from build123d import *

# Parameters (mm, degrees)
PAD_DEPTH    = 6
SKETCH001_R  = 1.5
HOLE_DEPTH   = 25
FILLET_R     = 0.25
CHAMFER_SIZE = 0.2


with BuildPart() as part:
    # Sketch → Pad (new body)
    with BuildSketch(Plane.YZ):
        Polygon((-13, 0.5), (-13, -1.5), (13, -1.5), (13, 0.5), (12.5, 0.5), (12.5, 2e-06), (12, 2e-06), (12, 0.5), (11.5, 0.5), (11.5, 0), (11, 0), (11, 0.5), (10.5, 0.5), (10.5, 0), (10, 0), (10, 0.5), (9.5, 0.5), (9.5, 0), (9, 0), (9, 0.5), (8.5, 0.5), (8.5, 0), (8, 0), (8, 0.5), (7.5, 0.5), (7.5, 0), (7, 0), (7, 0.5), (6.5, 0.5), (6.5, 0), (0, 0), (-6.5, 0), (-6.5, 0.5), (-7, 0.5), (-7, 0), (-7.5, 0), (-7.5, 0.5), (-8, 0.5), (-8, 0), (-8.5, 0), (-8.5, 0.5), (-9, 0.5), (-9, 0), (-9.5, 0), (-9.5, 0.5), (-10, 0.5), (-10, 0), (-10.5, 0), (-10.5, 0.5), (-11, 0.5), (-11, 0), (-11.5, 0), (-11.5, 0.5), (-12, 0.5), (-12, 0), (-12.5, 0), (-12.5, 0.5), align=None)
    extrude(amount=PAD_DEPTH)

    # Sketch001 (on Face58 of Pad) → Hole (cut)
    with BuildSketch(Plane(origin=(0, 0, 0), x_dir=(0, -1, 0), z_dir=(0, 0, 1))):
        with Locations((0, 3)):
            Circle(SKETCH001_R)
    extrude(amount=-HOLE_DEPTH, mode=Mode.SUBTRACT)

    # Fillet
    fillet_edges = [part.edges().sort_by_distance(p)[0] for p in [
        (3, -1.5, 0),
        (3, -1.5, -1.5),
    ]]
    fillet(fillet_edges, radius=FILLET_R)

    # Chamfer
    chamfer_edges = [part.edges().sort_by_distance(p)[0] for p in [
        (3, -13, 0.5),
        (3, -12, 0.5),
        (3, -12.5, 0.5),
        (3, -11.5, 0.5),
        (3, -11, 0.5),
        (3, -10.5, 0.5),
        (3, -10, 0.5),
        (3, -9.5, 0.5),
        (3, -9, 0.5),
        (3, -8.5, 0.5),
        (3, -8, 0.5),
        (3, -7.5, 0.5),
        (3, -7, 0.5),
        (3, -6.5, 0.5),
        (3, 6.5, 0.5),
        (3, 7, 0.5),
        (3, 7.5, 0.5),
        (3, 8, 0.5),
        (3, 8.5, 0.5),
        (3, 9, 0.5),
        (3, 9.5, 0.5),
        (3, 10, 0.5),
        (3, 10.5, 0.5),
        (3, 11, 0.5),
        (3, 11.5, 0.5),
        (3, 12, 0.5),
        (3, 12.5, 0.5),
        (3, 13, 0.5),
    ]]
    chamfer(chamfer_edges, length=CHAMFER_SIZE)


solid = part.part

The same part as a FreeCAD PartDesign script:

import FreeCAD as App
import Part
import Sketcher

V = App.Vector
Q = App.Units.Quantity


def edges_at(feature, points):
    """Names of the edges that pass closest to the given points."""
    edges = feature.Shape.Edges
    near = lambda p: min(range(len(edges)), key=lambda i: edges[i].distToShape(Part.Vertex(*p))[0])
    return sorted({f"Edge{near(p) + 1}" for p in points})

doc = App.newDocument("Part")
body = doc.addObject("PartDesign::Body", "Body")

# Sketch on YZ plane
sketch1 = body.newObject("Sketcher::SketchObject", "Sketch")
sketch1.AttachmentSupport = (doc.getObject("YZ_Plane"), [""])
sketch1.MapMode = "FlatFace"
sketch1.addGeometry([
    Part.LineSegment(V(-13, 0.5, 0), V(-13, -1.5, 0)),  # 0
    Part.LineSegment(V(-13, -1.5, 0), V(13, -1.5, 0)),  # 1
    Part.LineSegment(V(13, -1.5, 0), V(13, 0.5, 0)),  # 2
    Part.LineSegment(V(13, 0.5, 0), V(12.5, 0.5, 0)),  # 3
    Part.LineSegment(V(12.5, 0.5, 0), V(12.5, 0, 0)),  # 4
    Part.LineSegment(V(12.5, 0, 0), V(12, 0, 0)),  # 5
    Part.LineSegment(V(12, 0, 0), V(12, 0.5, 0)),  # 6
    Part.LineSegment(V(12, 0.5, 0), V(11.5, 0.5, 0)),  # 7
    Part.LineSegment(V(11.5, 0.5, 0), V(11.5, 0, 0)),  # 8
    Part.LineSegment(V(11.5, 0, 0), V(11, 0, 0)),  # 9
    Part.LineSegment(V(11, 0, 0), V(11, 0.5, 0)),  # 10
    Part.LineSegment(V(11, 0.5, 0), V(10.5, 0.5, 0)),  # 11
    Part.LineSegment(V(10.5, 0.5, 0), V(10.5, 0, 0)),  # 12
    Part.LineSegment(V(10.5, 0, 0), V(10, 0, 0)),  # 13
    Part.LineSegment(V(10, 0, 0), V(10, 0.5, 0)),  # 14
    Part.LineSegment(V(10, 0.5, 0), V(9.5, 0.5, 0)),  # 15
    Part.LineSegment(V(9.5, 0.5, 0), V(9.5, 0, 0)),  # 16
    Part.LineSegment(V(9.5, 0, 0), V(9, 0, 0)),  # 17
    Part.LineSegment(V(9, 0, 0), V(9, 0.5, 0)),  # 18
    Part.LineSegment(V(9, 0.5, 0), V(8.5, 0.5, 0)),  # 19
    Part.LineSegment(V(8.5, 0.5, 0), V(8.5, 0, 0)),  # 20
    Part.LineSegment(V(8.5, 0, 0), V(8, 0, 0)),  # 21
    Part.LineSegment(V(8, 0, 0), V(8, 0.5, 0)),  # 22
    Part.LineSegment(V(8, 0.5, 0), V(7.5, 0.5, 0)),  # 23
    Part.LineSegment(V(7.5, 0.5, 0), V(7.5, 0, 0)),  # 24
    Part.LineSegment(V(7.5, 0, 0), V(7, 0, 0)),  # 25
    Part.LineSegment(V(7, 0, 0), V(7, 0.5, 0)),  # 26
    Part.LineSegment(V(7, 0.5, 0), V(6.5, 0.5, 0)),  # 27
    Part.LineSegment(V(6.5, 0.5, 0), V(6.5, 0, 0)),  # 28
    Part.LineSegment(V(6.5, 0, 0), V(-6.5, 0, 0)),  # 29
    Part.LineSegment(V(-6.5, 0, 0), V(-6.5, 0.5, 0)),  # 30
    Part.LineSegment(V(-6.5, 0.5, 0), V(-7, 0.5, 0)),  # 31
    Part.LineSegment(V(-7, 0.5, 0), V(-7, 0, 0)),  # 32
    Part.LineSegment(V(-7, 0, 0), V(-7.5, 0, 0)),  # 33
    Part.LineSegment(V(-7.5, 0, 0), V(-7.5, 0.5, 0)),  # 34
    Part.LineSegment(V(-7.5, 0.5, 0), V(-8, 0.5, 0)),  # 35
    Part.LineSegment(V(-8, 0.5, 0), V(-8, 0, 0)),  # 36
    Part.LineSegment(V(-8, 0, 0), V(-8.5, 0, 0)),  # 37
    Part.LineSegment(V(-8.5, 0, 0), V(-8.5, 0.5, 0)),  # 38
    Part.LineSegment(V(-8.5, 0.5, 0), V(-9, 0.5, 0)),  # 39
    Part.LineSegment(V(-9, 0.5, 0), V(-9, 0, 0)),  # 40
    Part.LineSegment(V(-9, 0, 0), V(-9.5, 0, 0)),  # 41
    Part.LineSegment(V(-9.5, 0, 0), V(-9.5, 0.5, 0)),  # 42
    Part.LineSegment(V(-9.5, 0.5, 0), V(-10, 0.5, 0)),  # 43
    Part.LineSegment(V(-10, 0.5, 0), V(-10, 0, 0)),  # 44
    Part.LineSegment(V(-10, 0, 0), V(-10.5, 0, 0)),  # 45
    Part.LineSegment(V(-10.5, 0, 0), V(-10.5, 0.5, 0)),  # 46
    Part.LineSegment(V(-10.5, 0.5, 0), V(-11, 0.5, 0)),  # 47
    Part.LineSegment(V(-11, 0.5, 0), V(-11, 0, 0)),  # 48
    Part.LineSegment(V(-11, 0, 0), V(-11.5, 0, 0)),  # 49
    Part.LineSegment(V(-11.5, 0, 0), V(-11.5, 0.5, 0)),  # 50
    Part.LineSegment(V(-11.5, 0.5, 0), V(-12, 0.5, 0)),  # 51
    Part.LineSegment(V(-12, 0.5, 0), V(-12, 0, 0)),  # 52
    Part.LineSegment(V(-12, 0, 0), V(-12.5, 0, 0)),  # 53
    Part.LineSegment(V(-12.5, 0, 0), V(-12.5, 0.5, 0)),  # 54
    Part.LineSegment(V(-12.5, 0.5, 0), V(-13, 0.5, 0)),  # 55
], False)
sketch1.addConstraint([
    Sketcher.Constraint("Coincident", 0, 2, 1, 1),
    Sketcher.Constraint("Coincident", 1, 2, 2, 1),
    Sketcher.Constraint("Coincident", 2, 2, 3, 1),
    Sketcher.Constraint("Coincident", 3, 2, 4, 1),
    Sketcher.Constraint("Coincident", 4, 2, 5, 1),
    Sketcher.Constraint("Coincident", 5, 2, 6, 1),
    Sketcher.Constraint("Coincident", 6, 2, 7, 1),
    Sketcher.Constraint("Coincident", 7, 2, 8, 1),
    Sketcher.Constraint("Coincident", 8, 2, 9, 1),
    Sketcher.Constraint("Coincident", 9, 2, 10, 1),
    Sketcher.Constraint("Coincident", 10, 2, 11, 1),
    Sketcher.Constraint("Coincident", 11, 2, 12, 1),
    Sketcher.Constraint("Coincident", 12, 2, 13, 1),
    Sketcher.Constraint("Coincident", 13, 2, 14, 1),
    Sketcher.Constraint("Coincident", 14, 2, 15, 1),
    Sketcher.Constraint("Coincident", 15, 2, 16, 1),
    Sketcher.Constraint("Coincident", 16, 2, 17, 1),
    Sketcher.Constraint("Coincident", 17, 2, 18, 1),
    Sketcher.Constraint("Coincident", 18, 2, 19, 1),
    Sketcher.Constraint("Coincident", 19, 2, 20, 1),
    Sketcher.Constraint("Coincident", 20, 2, 21, 1),
    Sketcher.Constraint("Coincident", 21, 2, 22, 1),
    Sketcher.Constraint("Coincident", 22, 2, 23, 1),
    Sketcher.Constraint("Coincident", 23, 2, 24, 1),
    Sketcher.Constraint("Coincident", 24, 2, 25, 1),
    Sketcher.Constraint("Coincident", 25, 2, 26, 1),
    Sketcher.Constraint("Coincident", 26, 2, 27, 1),
    Sketcher.Constraint("Coincident", 27, 2, 28, 1),
    Sketcher.Constraint("Coincident", 28, 2, 29, 1),
    Sketcher.Constraint("Coincident", 29, 2, 30, 1),
    Sketcher.Constraint("Coincident", 30, 2, 31, 1),
    Sketcher.Constraint("Coincident", 31, 2, 32, 1),
    Sketcher.Constraint("Coincident", 32, 2, 33, 1),
    Sketcher.Constraint("Coincident", 33, 2, 34, 1),
    Sketcher.Constraint("Coincident", 34, 2, 35, 1),
    Sketcher.Constraint("Coincident", 35, 2, 36, 1),
    Sketcher.Constraint("Coincident", 36, 2, 37, 1),
    Sketcher.Constraint("Coincident", 37, 2, 38, 1),
    Sketcher.Constraint("Coincident", 38, 2, 39, 1),
    Sketcher.Constraint("Coincident", 39, 2, 40, 1),
    Sketcher.Constraint("Coincident", 40, 2, 41, 1),
    Sketcher.Constraint("Coincident", 41, 2, 42, 1),
    Sketcher.Constraint("Coincident", 42, 2, 43, 1),
    Sketcher.Constraint("Coincident", 43, 2, 44, 1),
    Sketcher.Constraint("Coincident", 44, 2, 45, 1),
    Sketcher.Constraint("Coincident", 45, 2, 46, 1),
    Sketcher.Constraint("Coincident", 46, 2, 47, 1),
    Sketcher.Constraint("Coincident", 47, 2, 48, 1),
    Sketcher.Constraint("Coincident", 48, 2, 49, 1),
    Sketcher.Constraint("Coincident", 49, 2, 50, 1),
    Sketcher.Constraint("Coincident", 50, 2, 51, 1),
    Sketcher.Constraint("Coincident", 51, 2, 52, 1),
    Sketcher.Constraint("Coincident", 52, 2, 53, 1),
    Sketcher.Constraint("Coincident", 53, 2, 54, 1),
    Sketcher.Constraint("Coincident", 54, 2, 55, 1),
    Sketcher.Constraint("Coincident", 55, 2, 0, 1),
    Sketcher.Constraint("Vertical", 0),
    Sketcher.Constraint("Horizontal", 1),
    Sketcher.Constraint("Vertical", 2),
    Sketcher.Constraint("Horizontal", 3),
    Sketcher.Constraint("Vertical", 4),
    Sketcher.Constraint("Horizontal", 5),
    Sketcher.Constraint("Vertical", 6),
    Sketcher.Constraint("Horizontal", 7),
    Sketcher.Constraint("Vertical", 8),
    Sketcher.Constraint("Horizontal", 9),
    Sketcher.Constraint("Vertical", 10),
    Sketcher.Constraint("Horizontal", 11),
    Sketcher.Constraint("Vertical", 12),
    Sketcher.Constraint("Horizontal", 13),
    Sketcher.Constraint("Vertical", 14),
    Sketcher.Constraint("Horizontal", 15),
    Sketcher.Constraint("Vertical", 16),
    Sketcher.Constraint("Horizontal", 17),
    Sketcher.Constraint("Vertical", 18),
    Sketcher.Constraint("Horizontal", 19),
    Sketcher.Constraint("Vertical", 20),
    Sketcher.Constraint("Horizontal", 21),
    Sketcher.Constraint("Vertical", 22),
    Sketcher.Constraint("Horizontal", 23),
    Sketcher.Constraint("Vertical", 24),
    Sketcher.Constraint("Horizontal", 25),
    Sketcher.Constraint("Vertical", 26),
    Sketcher.Constraint("Horizontal", 27),
    Sketcher.Constraint("Vertical", 28),
    Sketcher.Constraint("Horizontal", 29),
    Sketcher.Constraint("Vertical", 30),
    Sketcher.Constraint("Horizontal", 31),
    Sketcher.Constraint("Vertical", 32),
    Sketcher.Constraint("Horizontal", 33),
    Sketcher.Constraint("Vertical", 34),
    Sketcher.Constraint("Horizontal", 35),
    Sketcher.Constraint("Vertical", 36),
    Sketcher.Constraint("Horizontal", 37),
    Sketcher.Constraint("Vertical", 38),
    Sketcher.Constraint("Horizontal", 39),
    Sketcher.Constraint("Vertical", 40),
    Sketcher.Constraint("Horizontal", 41),
    Sketcher.Constraint("Vertical", 42),
    Sketcher.Constraint("Horizontal", 43),
    Sketcher.Constraint("Vertical", 44),
    Sketcher.Constraint("Horizontal", 45),
    Sketcher.Constraint("Vertical", 46),
    Sketcher.Constraint("Horizontal", 47),
    Sketcher.Constraint("Vertical", 48),
    Sketcher.Constraint("Horizontal", 49),
    Sketcher.Constraint("Vertical", 50),
    Sketcher.Constraint("Horizontal", 51),
    Sketcher.Constraint("Vertical", 52),
    Sketcher.Constraint("Horizontal", 53),
    Sketcher.Constraint("Vertical", 54),
    Sketcher.Constraint("Horizontal", 55),
    Sketcher.Constraint("Symmetric", 28, 2, 29, 2, -1, 1),
    Sketcher.Constraint("Symmetric", 25, 2, 32, 2, -1, 1),
    Sketcher.Constraint("Symmetric", 21, 2, 36, 2, -1, 1),
    Sketcher.Constraint("Symmetric", 17, 2, 40, 2, -1, 1),
    Sketcher.Constraint("Symmetric", 13, 2, 44, 2, -1, 1),
    Sketcher.Constraint("Symmetric", 9, 2, 48, 2, -1, 1),
    Sketcher.Constraint("Symmetric", 5, 2, 52, 2, -1, 1),
    Sketcher.Constraint("Symmetric", 24, 2, 33, 2, -2),
    Sketcher.Constraint("Symmetric", 20, 2, 37, 2, -2),
    Sketcher.Constraint("Symmetric", 16, 2, 41, 2, -2),
    Sketcher.Constraint("Symmetric", 12, 2, 45, 2, -2),
    Sketcher.Constraint("Symmetric", 8, 2, 49, 2, -2),
    Sketcher.Constraint("Symmetric", 4, 2, 53, 2, -2),
    Sketcher.Constraint("Symmetric", 2, 2, 55, 2, -2),
    Sketcher.Constraint("Horizontal", 3, 2, 6, 2),
    Sketcher.Constraint("Horizontal", 7, 2, 10, 2),
    Sketcher.Constraint("Horizontal", 11, 2, 14, 2),
    Sketcher.Constraint("Horizontal", 15, 2, 18, 2),
    Sketcher.Constraint("Horizontal", 19, 2, 22, 2),
    Sketcher.Constraint("Horizontal", 23, 2, 26, 2),
    Sketcher.Constraint("Horizontal", 27, 2, 30, 2),
    Sketcher.Constraint("Horizontal", 31, 2, 34, 2),
    Sketcher.Constraint("Horizontal", 35, 2, 38, 2),
    Sketcher.Constraint("Horizontal", 39, 2, 42, 2),
    Sketcher.Constraint("Horizontal", 43, 2, 46, 2),
    Sketcher.Constraint("Horizontal", 47, 2, 50, 2),
    Sketcher.Constraint("Equal", 3, 5),
    Sketcher.Constraint("Equal", 5, 7),
    Sketcher.Constraint("Equal", 7, 9),
    Sketcher.Constraint("Equal", 9, 11),
    Sketcher.Constraint("Equal", 11, 13),
    Sketcher.Constraint("Equal", 13, 15),
    Sketcher.Constraint("Equal", 15, 17),
    Sketcher.Constraint("Equal", 17, 19),
    Sketcher.Constraint("Equal", 19, 21),
    Sketcher.Constraint("Equal", 21, 23),
    Sketcher.Constraint("Equal", 23, 25),
    Sketcher.Constraint("Equal", 25, 27),
    Sketcher.Constraint("Equal", 55, 8),
    Sketcher.Constraint("DistanceX", 1, 1, 1, 2, Q("26 mm")),
    Sketcher.Constraint("DistanceX", 29, 2, 29, 1, Q("13 mm")),
    Sketcher.Constraint("DistanceY", 0, 2, 0, 1, Q("2 mm")),
])
pad1 = body.newObject("PartDesign::Pad", "Pad")
pad1.Profile = sketch1
pad1.Length = 6

# Sketch on XY plane
sketch2 = body.newObject("Sketcher::SketchObject", "Sketch001")
sketch2.AttachmentSupport = (doc.getObject("XY_Plane"), [""])
sketch2.MapMode = "FlatFace"
sketch2.addGeometry(Part.Circle(V(3, 0, 0), V(0, 0, 1), 1.5), False)
sketch2.addConstraint([
    Sketcher.Constraint("PointOnObject", 0, 3, -1),
    Sketcher.Constraint("Diameter", 0, Q("3 mm")),
    Sketcher.Constraint("DistanceX", -1, 1, 0, 3, Q("3 mm")),
])
pocket1 = body.newObject("PartDesign::Pocket", "Pocket")
pocket1.Profile = sketch2
pocket1.Length = 25
doc.recompute()

fillet = body.newObject("PartDesign::Fillet", "Fillet")
fillet.Base = (pocket1, edges_at(pocket1, [(3, 1.5, 0), (3, 1.5, -1.5)]))
fillet.Radius = 0.25
doc.recompute()

chamfer = body.newObject("PartDesign::Chamfer", "Chamfer")
chamfer.Base = (fillet, edges_at(fillet, [
    (3, -13, 0.5),
    (3, -12, 0.5),
    (3, -12.5, 0.5),
    (3, -11.5, 0.5),
    (3, -11, 0.5),
    (3, -10.5, 0.5),
    (3, -10, 0.5),
    (3, -9.5, 0.5),
    (3, -9, 0.5),
    (3, -8.5, 0.5),
    (3, -8, 0.5),
    (3, -7.5, 0.5),
    (3, -7, 0.5),
    (3, -6.5, 0.5),
    (3, 6.5, 0.5),
    (3, 7, 0.5),
    (3, 7.5, 0.5),
    (3, 8, 0.5),
    (3, 8.5, 0.5),
    (3, 9, 0.5),
    (3, 9.5, 0.5),
    (3, 10, 0.5),
    (3, 10.5, 0.5),
    (3, 11, 0.5),
    (3, 11.5, 0.5),
    (3, 12, 0.5),
    (3, 12.5, 0.5),
    (3, 13, 0.5),
]))
chamfer.Size = 0.2

doc.recompute()
